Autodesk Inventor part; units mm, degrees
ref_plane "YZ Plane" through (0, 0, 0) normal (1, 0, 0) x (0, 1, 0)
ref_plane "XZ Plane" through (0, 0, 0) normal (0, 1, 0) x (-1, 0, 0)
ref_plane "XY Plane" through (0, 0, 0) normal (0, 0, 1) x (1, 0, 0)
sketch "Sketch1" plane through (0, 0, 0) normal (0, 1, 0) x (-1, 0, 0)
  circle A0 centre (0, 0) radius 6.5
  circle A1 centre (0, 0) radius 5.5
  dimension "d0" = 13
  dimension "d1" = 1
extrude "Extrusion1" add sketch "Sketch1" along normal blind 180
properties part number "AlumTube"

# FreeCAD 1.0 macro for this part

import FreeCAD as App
import Part
import Sketcher
from FreeCAD import Vector
Q = App.Units.Quantity

doc = App.newDocument("Part")
body = doc.addObject("PartDesign::Body", "Body")

# Sketch on XZ plane
sketch1 = body.newObject("Sketcher::SketchObject", "Sketch")
sketch1.AttachmentSupport = (doc.getObject("XZ_Plane"), [""])
sketch1.MapMode = "FlatFace"
sketch1.addGeometry([
    Part.Circle(Vector(0, 0, 0), Vector(0, 0, 1), 6.5),
    Part.Circle(Vector(0, 0, 0), Vector(0, 0, 1), 5.5),
], False)
sketch1.addConstraint([
    Sketcher.Constraint("Coincident", 0, 3, -1, 1),
    Sketcher.Constraint("Coincident", 1, 3, -1, 1),
    Sketcher.Constraint("Diameter", 0, Q("13 mm")),
    Sketcher.Constraint("Diameter", 1, Q("11 mm")),
])
pad1 = body.newObject("PartDesign::Pad", "Pad")
pad1.Profile = sketch1
pad1.Length = 180
pad1.Reversed = True

doc.recompute()
